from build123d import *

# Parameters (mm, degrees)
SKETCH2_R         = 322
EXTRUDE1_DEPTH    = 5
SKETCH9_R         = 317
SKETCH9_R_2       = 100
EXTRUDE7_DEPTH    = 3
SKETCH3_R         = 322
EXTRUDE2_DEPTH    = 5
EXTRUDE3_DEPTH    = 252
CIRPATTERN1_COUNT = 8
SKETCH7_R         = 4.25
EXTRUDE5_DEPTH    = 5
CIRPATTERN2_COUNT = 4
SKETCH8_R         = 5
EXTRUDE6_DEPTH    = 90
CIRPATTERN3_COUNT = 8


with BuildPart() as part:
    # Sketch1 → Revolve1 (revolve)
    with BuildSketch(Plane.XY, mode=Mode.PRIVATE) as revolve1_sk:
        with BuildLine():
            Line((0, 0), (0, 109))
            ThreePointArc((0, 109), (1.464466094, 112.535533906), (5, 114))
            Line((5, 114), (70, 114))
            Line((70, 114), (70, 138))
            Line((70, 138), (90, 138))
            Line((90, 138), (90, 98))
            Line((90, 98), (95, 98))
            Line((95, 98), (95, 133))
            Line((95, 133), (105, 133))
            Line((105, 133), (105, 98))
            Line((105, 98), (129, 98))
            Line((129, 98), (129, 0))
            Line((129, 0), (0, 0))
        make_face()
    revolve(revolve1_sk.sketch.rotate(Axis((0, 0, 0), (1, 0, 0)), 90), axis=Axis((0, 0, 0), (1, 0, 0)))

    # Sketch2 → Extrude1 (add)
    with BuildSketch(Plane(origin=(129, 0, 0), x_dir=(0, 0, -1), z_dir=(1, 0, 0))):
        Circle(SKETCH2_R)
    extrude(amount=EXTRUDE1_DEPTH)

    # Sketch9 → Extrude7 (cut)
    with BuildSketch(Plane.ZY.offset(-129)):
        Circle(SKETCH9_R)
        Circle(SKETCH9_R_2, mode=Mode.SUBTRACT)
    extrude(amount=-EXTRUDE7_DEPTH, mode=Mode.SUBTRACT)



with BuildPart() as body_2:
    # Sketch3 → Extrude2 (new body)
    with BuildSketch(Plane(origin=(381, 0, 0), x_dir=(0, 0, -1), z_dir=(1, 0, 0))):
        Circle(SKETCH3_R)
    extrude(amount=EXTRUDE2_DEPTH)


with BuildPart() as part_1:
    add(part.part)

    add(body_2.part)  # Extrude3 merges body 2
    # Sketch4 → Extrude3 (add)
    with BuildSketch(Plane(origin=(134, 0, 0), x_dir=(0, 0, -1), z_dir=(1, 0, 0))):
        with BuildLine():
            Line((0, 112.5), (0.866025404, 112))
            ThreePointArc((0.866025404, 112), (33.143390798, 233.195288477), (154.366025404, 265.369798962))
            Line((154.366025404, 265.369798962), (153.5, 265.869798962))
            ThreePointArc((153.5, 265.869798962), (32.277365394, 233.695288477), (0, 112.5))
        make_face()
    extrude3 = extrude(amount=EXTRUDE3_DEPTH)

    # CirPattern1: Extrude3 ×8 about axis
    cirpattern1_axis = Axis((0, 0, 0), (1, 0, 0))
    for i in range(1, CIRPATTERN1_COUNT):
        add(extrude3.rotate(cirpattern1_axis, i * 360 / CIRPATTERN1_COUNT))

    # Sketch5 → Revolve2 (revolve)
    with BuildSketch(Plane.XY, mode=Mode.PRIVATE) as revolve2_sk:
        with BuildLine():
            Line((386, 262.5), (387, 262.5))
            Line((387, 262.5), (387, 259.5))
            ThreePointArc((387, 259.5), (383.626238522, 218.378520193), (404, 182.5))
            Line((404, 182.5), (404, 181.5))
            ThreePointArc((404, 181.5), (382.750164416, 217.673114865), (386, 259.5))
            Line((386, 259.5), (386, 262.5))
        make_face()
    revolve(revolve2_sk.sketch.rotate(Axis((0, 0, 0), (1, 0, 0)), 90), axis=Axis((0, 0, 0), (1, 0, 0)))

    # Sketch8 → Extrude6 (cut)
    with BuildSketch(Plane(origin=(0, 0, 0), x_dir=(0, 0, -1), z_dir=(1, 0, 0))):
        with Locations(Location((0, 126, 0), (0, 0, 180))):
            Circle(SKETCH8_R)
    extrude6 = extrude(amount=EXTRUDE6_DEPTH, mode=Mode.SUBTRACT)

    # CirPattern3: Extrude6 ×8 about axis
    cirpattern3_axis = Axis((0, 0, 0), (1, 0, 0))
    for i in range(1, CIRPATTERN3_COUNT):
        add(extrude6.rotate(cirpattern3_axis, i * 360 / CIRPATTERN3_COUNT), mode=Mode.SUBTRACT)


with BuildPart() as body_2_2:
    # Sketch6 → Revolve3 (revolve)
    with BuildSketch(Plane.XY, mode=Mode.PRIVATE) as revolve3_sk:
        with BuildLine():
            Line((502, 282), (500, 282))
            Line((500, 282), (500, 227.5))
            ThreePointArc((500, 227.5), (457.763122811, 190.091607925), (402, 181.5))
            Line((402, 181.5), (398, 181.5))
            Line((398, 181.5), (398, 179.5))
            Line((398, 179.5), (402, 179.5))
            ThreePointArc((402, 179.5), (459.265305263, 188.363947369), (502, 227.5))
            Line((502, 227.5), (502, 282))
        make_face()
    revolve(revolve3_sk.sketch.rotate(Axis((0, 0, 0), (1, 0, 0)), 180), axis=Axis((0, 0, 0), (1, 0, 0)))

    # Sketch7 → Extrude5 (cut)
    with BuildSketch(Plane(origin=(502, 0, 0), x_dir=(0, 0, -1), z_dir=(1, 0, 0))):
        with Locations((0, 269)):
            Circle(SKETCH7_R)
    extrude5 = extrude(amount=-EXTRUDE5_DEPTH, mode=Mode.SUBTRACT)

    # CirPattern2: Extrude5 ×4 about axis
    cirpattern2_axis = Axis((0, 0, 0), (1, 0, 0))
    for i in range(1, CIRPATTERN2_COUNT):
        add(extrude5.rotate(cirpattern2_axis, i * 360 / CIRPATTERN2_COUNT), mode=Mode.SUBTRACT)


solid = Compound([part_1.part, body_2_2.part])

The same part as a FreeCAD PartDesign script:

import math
import FreeCAD as App
import Part
import Sketcher

V = App.Vector
Q = App.Units.Quantity

doc = App.newDocument("Part")
body = doc.addObject("PartDesign::Body", "Body")

sketch1 = body.newObject("Sketcher::SketchObject", "Sketch")
sketch1.AttachmentSupport = (doc.getObject("XY_Plane"), [""])
sketch1.MapMode = "FlatFace"
sketch1.addGeometry(Part.LineSegment(V(0, 109, 0), V(0, 0, 0)), False)
sketch1.addGeometry(Part.LineSegment(V(0, 0, 0), V(129, 0, 0)), False)
sketch1.addGeometry(Part.LineSegment(V(129, 0, 0), V(129, 98, 0)), False)
sketch1.addGeometry(Part.LineSegment(V(129, 98, 0), V(105, 98, 0)), False)
sketch1.addGeometry(Part.LineSegment(V(105, 98, 0), V(105, 133, 0)), False)
sketch1.addGeometry(Part.LineSegment(V(105, 133, 0), V(95, 133, 0)), False)
sketch1.addGeometry(Part.LineSegment(V(95, 133, 0), V(95, 98, 0)), False)
sketch1.addGeometry(Part.LineSegment(V(95, 98, 0), V(90, 98, 0)), False)
sketch1.addGeometry(Part.LineSegment(V(90, 98, 0), V(90, 138, 0)), False)
sketch1.addGeometry(Part.LineSegment(V(90, 138, 0), V(70, 138, 0)), False)
sketch1.addGeometry(Part.LineSegment(V(70, 138, 0), V(70, 114, 0)), False)
sketch1.addGeometry(Part.LineSegment(V(70, 114, 0), V(5, 114, 0)), False)
sketch1.addGeometry(Part.ArcOfCircle(Part.Circle(V(5, 109, 0), V(0, 0, 1), 5), math.radians(90), math.radians(180)), False)
sketch1.addConstraint(Sketcher.Constraint("Coincident", 0, 2, 1, 1))
sketch1.addConstraint(Sketcher.Constraint("Coincident", 1, 2, 2, 1))
sketch1.addConstraint(Sketcher.Constraint("Coincident", 2, 2, 3, 1))
sketch1.addConstraint(Sketcher.Constraint("Coincident", 3, 2, 4, 1))
sketch1.addConstraint(Sketcher.Constraint("Coincident", 4, 2, 5, 1))
sketch1.addConstraint(Sketcher.Constraint("Coincident", 5, 2, 6, 1))
sketch1.addConstraint(Sketcher.Constraint("Coincident", 6, 2, 7, 1))
sketch1.addConstraint(Sketcher.Constraint("Coincident", 7, 2, 8, 1))
sketch1.addConstraint(Sketcher.Constraint("Coincident", 8, 2, 9, 1))
sketch1.addConstraint(Sketcher.Constraint("Coincident", 9, 2, 10, 1))
sketch1.addConstraint(Sketcher.Constraint("Coincident", 10, 2, 11, 1))
sketch1.addConstraint(Sketcher.Constraint("Tangent", 11, 2, 12, 1))
sketch1.addConstraint(Sketcher.Constraint("Tangent", 12, 2, 0, 1))
sketch1.addConstraint(Sketcher.Constraint("Vertical", 0))
sketch1.addConstraint(Sketcher.Constraint("Horizontal", 1))
sketch1.addConstraint(Sketcher.Constraint("Vertical", 2))
sketch1.addConstraint(Sketcher.Constraint("Horizontal", 3))
sketch1.addConstraint(Sketcher.Constraint("Vertical", 4))
sketch1.addConstraint(Sketcher.Constraint("Horizontal", 5))
sketch1.addConstraint(Sketcher.Constraint("Vertical", 6))
sketch1.addConstraint(Sketcher.Constraint("Horizontal", 7))
sketch1.addConstraint(Sketcher.Constraint("Vertical", 8))
sketch1.addConstraint(Sketcher.Constraint("Horizontal", 9))
sketch1.addConstraint(Sketcher.Constraint("Vertical", 10))
sketch1.addConstraint(Sketcher.Constraint("Horizontal", 11))
sketch1.addConstraint(Sketcher.Constraint("Coincident", 0, 2, -1, 1))
sketch1.addConstraint(Sketcher.Constraint("Horizontal", 3, 2, 6, 2))
sketch1.addConstraint(Sketcher.Constraint("Equal", 3, 10))
sketch1.addConstraint(Sketcher.Constraint("Radius", 12, Q("5 mm")))
sketch1.addConstraint(Sketcher.Constraint("DistanceX", 1, 1, 1, 2, Q("129 mm")))
sketch1.addConstraint(Sketcher.Constraint("DistanceX", 3, 2, 3, 1, Q("24 mm")))
sketch1.addConstraint(Sketcher.Constraint("DistanceX", 5, 2, 5, 1, Q("10 mm")))
sketch1.addConstraint(Sketcher.Constraint("DistanceX", 7, 2, 7, 1, Q("5 mm")))
sketch1.addConstraint(Sketcher.Constraint("DistanceX", 9, 2, 9, 1, Q("20 mm")))
sketch1.addConstraint(Sketcher.Constraint("DistanceY", 0, 2, 0, 1, Q("109 mm")))
sketch1.addConstraint(Sketcher.Constraint("DistanceY", 2, 1, 2, 2, Q("98 mm")))
sketch1.addConstraint(Sketcher.Constraint("DistanceY", 4, 1, 4, 2, Q("35 mm")))
revolution = body.newObject("PartDesign::Revolution", "Revolution")
revolution.Profile = sketch1
revolution.ReferenceAxis = (sketch1, ["H_Axis"])
revolution.Angle = 360

sketch2 = body.newObject("Sketcher::SketchObject", "Sketch001")
sketch2.AttachmentSupport = (doc.getObject("YZ_Plane"), [""])
sketch2.MapMode = "FlatFace"
sketch2.AttachmentOffset = App.Placement(V(0, 0, 129), App.Rotation())
sketch2.addGeometry(Part.Circle(V(0, 0, 0), V(0, 0, 1), 322), False)
sketch2.addConstraint(Sketcher.Constraint("Coincident", 0, 3, -1, 1))
sketch2.addConstraint(Sketcher.Constraint("Diameter", 0, Q("644 mm")))
pad1 = body.newObject("PartDesign::Pad", "Pad")
pad1.Profile = sketch2
pad1.Length = 5

sketch3 = body.newObject("Sketcher::SketchObject", "Sketch002")
sketch3.AttachmentSupport = (doc.getObject("YZ_Plane"), [""])
sketch3.MapMode = "FlatFace"
sketch3.AttachmentOffset = App.Placement(V(0, 0, 129), App.Rotation())
sketch3.addGeometry(Part.Circle(V(0, 0, 0), V(0, 0, 1), 317), False)
sketch3.addGeometry(Part.Circle(V(0, 0, 0), V(0, 0, 1), 100), False)
sketch3.addConstraint(Sketcher.Constraint("Coincident", 0, 3, -1, 1))
sketch3.addConstraint(Sketcher.Constraint("Coincident", 1, 3, -1, 1))
sketch3.addConstraint(Sketcher.Constraint("Diameter", 0, Q("634 mm")))
sketch3.addConstraint(Sketcher.Constraint("Diameter", 1, Q("200 mm")))
pocket1 = body.newObject("PartDesign::Pocket", "Pocket")
pocket1.Profile = sketch3
pocket1.Length = 3
pocket1.Reversed = True
body2 = doc.addObject("PartDesign::Body", "Body001")

sketch4 = body2.newObject("Sketcher::SketchObject", "Sketch003")
sketch4.AttachmentSupport = (doc.getObject("YZ_Plane001"), [""])
sketch4.MapMode = "FlatFace"
sketch4.AttachmentOffset = App.Placement(V(0, 0, 381), App.Rotation())
sketch4.addGeometry(Part.Circle(V(0, 0, 0), V(0, 0, 1), 322), False)
sketch4.addConstraint(Sketcher.Constraint("Coincident", 0, 3, -1, 1))
sketch4.addConstraint(Sketcher.Constraint("Diameter", 0, Q("644 mm")))
pad2 = body2.newObject("PartDesign::Pad", "Pad001")
pad2.Profile = sketch4
pad2.Length = 5
body.AllowCompound = True
doc.recompute()

boolean = body.newObject("PartDesign::Boolean", "Boolean")
boolean.Type = "Fuse"
boolean.addObjects([body2])

sketch5 = body.newObject("Sketcher::SketchObject", "Sketch004")
sketch5.AttachmentSupport = (doc.getObject("YZ_Plane"), [""])
sketch5.MapMode = "FlatFace"
sketch5.AttachmentOffset = App.Placement(V(0, 0, 134), App.Rotation())
sketch5.addGeometry(Part.LineSegment(V(112.5, 0, 0), V(112, -0.9, 0)), False)
sketch5.addGeometry(Part.ArcOfCircle(Part.Circle(V(144.8, -121.5, 0), V(0, 0, 1), 125), math.radians(-15), math.radians(105)), False)
sketch5.addGeometry(Part.LineSegment(V(265.4, -154.4, 0), V(265.9, -153.5, 0)), False)
sketch5.addGeometry(Part.ArcOfCircle(Part.Circle(V(145.3, -120.6, 0), V(0, 0, 1), 125), math.radians(-15), math.radians(105)), False)
sketch5.addConstraint(Sketcher.Constraint("Coincident", 0, 2, 1, 2))
sketch5.addConstraint(Sketcher.Constraint("Coincident", 1, 1, 2, 1))
sketch5.addConstraint(Sketcher.Constraint("Coincident", 2, 2, 3, 1))
sketch5.addConstraint(Sketcher.Constraint("Coincident", 3, 2, 0, 1))
sketch5.addConstraint(Sketcher.Constraint("Equal", 1, 3))
sketch5.addConstraint(Sketcher.Constraint("PointOnObject", 3, 2, -1))
sketch5.addConstraint(Sketcher.Constraint("Parallel", 0, 2))
sketch5.addConstraint(Sketcher.Constraint("Equal", 0, 2))
sketch5.addConstraint(Sketcher.Constraint("Radius", 1, Q("125 mm")))
sketch5.addConstraint(Sketcher.Constraint("Angle", 0, Q("-120 deg")))
sketch5.addConstraint(Sketcher.Constraint("Distance", 0, Q("1 mm")))
sketch5.addConstraint(Sketcher.Constraint("DistanceX", -1, 1, 0, 2, Q("112 mm")))
sketch5.addConstraint(Sketcher.Constraint("DistanceY", 2, 2, -1, 1, Q("153.5 mm")))
sketch5.addConstraint(Sketcher.Constraint("DistanceX", -1, 1, 1, 1, Q("265.369799 mm")))
pad3 = body.newObject("PartDesign::Pad", "Pad002")
pad3.Profile = sketch5
pad3.Length = 252
doc.recompute()

polarpattern = body.newObject("PartDesign::PolarPattern", "PolarPattern")
polarpattern.Originals = [pad3]
polarpattern.Axis = (doc.getObject("X_Axis"), [""])
polarpattern.Angle = 360
polarpattern.Occurrences = 8
body.Tip = polarpattern

sketch6 = body.newObject("Sketcher::SketchObject", "Sketch005")
sketch6.AttachmentSupport = (doc.getObject("XY_Plane"), [""])
sketch6.MapMode = "FlatFace"
sketch6.addGeometry(Part.LineSegment(V(387, 262.5, 0), V(386, 262.5, 0)), False)
sketch6.addGeometry(Part.LineSegment(V(386, 262.5, 0), V(386, 259.5, 0)), False)
sketch6.addGeometry(Part.ArcOfCircle(Part.Circle(V(451, 233.4, 0), V(0, 0, 1), 70), math.radians(158), math.radians(228)), False)
sketch6.addGeometry(Part.LineSegment(V(404, 181.5, 0), V(404, 182.5, 0)), False)
sketch6.addGeometry(Part.ArcOfCircle(Part.Circle(V(452, 233.5, 0), V(0, 0, 1), 70), math.radians(158), math.radians(227)), False)
sketch6.addGeometry(Part.LineSegment(V(387, 259.5, 0), V(387, 262.5, 0)), False)
sketch6.addConstraint(Sketcher.Constraint("Coincident", 0, 2, 1, 1))
sketch6.addConstraint(Sketcher.Constraint("Coincident", 1, 2, 2, 1))
sketch6.addConstraint(Sketcher.Constraint("Coincident", 2, 2, 3, 1))
sketch6.addConstraint(Sketcher.Constraint("Coincident", 3, 2, 4, 2))
sketch6.addConstraint(Sketcher.Constraint("Coincident", 4, 1, 5, 1))
sketch6.addConstraint(Sketcher.Constraint("Coincident", 5, 2, 0, 1))
sketch6.addConstraint(Sketcher.Constraint("Horizontal", 0))
sketch6.addConstraint(Sketcher.Constraint("Vertical", 1))
sketch6.addConstraint(Sketcher.Constraint("Vertical", 3))
sketch6.addConstraint(Sketcher.Constraint("Vertical", 5))
sketch6.addConstraint(Sketcher.Constraint("Equal", 2, 4))
sketch6.addConstraint(Sketcher.Constraint("Horizontal", 1, 2, 4, 1))
sketch6.addConstraint(Sketcher.Constraint("Equal", 0, 3))
sketch6.addConstraint(Sketcher.Constraint("Radius", 2, Q("70 mm")))
sketch6.addConstraint(Sketcher.Constraint("DistanceX", 0, 2, 0, 1, Q("1 mm")))
sketch6.addConstraint(Sketcher.Constraint("DistanceY", 1, 2, 1, 1, Q("3 mm")))
sketch6.addConstraint(Sketcher.Constraint("DistanceX", -1, 1, 0, 2, Q("386 mm")))
sketch6.addConstraint(Sketcher.Constraint("DistanceX", -1, 1, 2, 2, Q("404 mm")))
sketch6.addConstraint(Sketcher.Constraint("DistanceY", 2, 2, 1, 2, Q("78 mm")))
sketch6.addConstraint(Sketcher.Constraint("DistanceY", -1, 1, 0, 2, Q("262.5 mm")))
revolution2 = body.newObject("PartDesign::Revolution", "Revolution001")
revolution2.Profile = sketch6
revolution2.ReferenceAxis = (sketch6, ["H_Axis"])
revolution2.Angle = 360

sketch7 = body.newObject("Sketcher::SketchObject", "Sketch006")
sketch7.AttachmentSupport = (doc.getObject("YZ_Plane"), [""])
sketch7.MapMode = "FlatFace"
sketch7.addGeometry(Part.Circle(V(126, 0, 0), V(0, 0, 1), 5), False)
sketch7.addConstraint(Sketcher.Constraint("PointOnObject", 0, 3, -1))
sketch7.addConstraint(Sketcher.Constraint("Diameter", 0, Q("10 mm")))
sketch7.addConstraint(Sketcher.Constraint("DistanceX", -1, 1, 0, 3, Q("126 mm")))
pocket2 = body.newObject("PartDesign::Pocket", "Pocket001")
pocket2.Profile = sketch7
pocket2.Length = 90
pocket2.Reversed = True
doc.recompute()

polarpattern2 = body.newObject("PartDesign::PolarPattern", "PolarPattern001")
polarpattern2.Originals = [pocket2]
polarpattern2.Axis = (doc.getObject("X_Axis"), [""])
polarpattern2.Angle = 360
polarpattern2.Occurrences = 8
body.Tip = polarpattern2
body3 = doc.addObject("PartDesign::Body", "Body002")

sketch8 = body3.newObject("Sketcher::SketchObject", "Sketch007")
sketch8.AttachmentSupport = (doc.getObject("XY_Plane002"), [""])
sketch8.MapMode = "FlatFace"
sketch8.addGeometry(Part.LineSegment(V(502, 282, 0), V(500, 282, 0)), False)
sketch8.addGeometry(Part.LineSegment(V(500, 282, 0), V(500, 227.5, 0)), False)
sketch8.addGeometry(Part.ArcOfCircle(Part.Circle(V(415.3, 280.6, 0), V(0, 0, 1), 100), math.radians(-98), math.radians(-32)), False)
sketch8.addGeometry(Part.LineSegment(V(402, 181.5, 0), V(398, 181.5, 0)), False)
sketch8.addGeometry(Part.LineSegment(V(398, 181.5, 0), V(398, 179.5, 0)), False)
sketch8.addGeometry(Part.LineSegment(V(398, 179.5, 0), V(402, 179.5, 0)), False)
sketch8.addGeometry(Part.ArcOfCircle(Part.Circle(V(416, 278.5, 0), V(0, 0, 1), 100), math.radians(-98), math.radians(-31)), False)
sketch8.addGeometry(Part.LineSegment(V(502, 227.5, 0), V(502, 282, 0)), False)
sketch8.addConstraint(Sketcher.Constraint("Coincident", 0, 2, 1, 1))
sketch8.addConstraint(Sketcher.Constraint("Coincident", 1, 2, 2, 2))
sketch8.addConstraint(Sketcher.Constraint("Coincident", 2, 1, 3, 1))
sketch8.addConstraint(Sketcher.Constraint("Coincident", 3, 2, 4, 1))
sketch8.addConstraint(Sketcher.Constraint("Coincident", 4, 2, 5, 1))
sketch8.addConstraint(Sketcher.Constraint("Coincident", 5, 2, 6, 1))
sketch8.addConstraint(Sketcher.Constraint("Coincident", 6, 2, 7, 1))
sketch8.addConstraint(Sketcher.Constraint("Coincident", 7, 2, 0, 1))
sketch8.addConstraint(Sketcher.Constraint("Horizontal", 0))
sketch8.addConstraint(Sketcher.Constraint("Vertical", 1))
sketch8.addConstraint(Sketcher.Constraint("Horizontal", 3))
sketch8.addConstraint(Sketcher.Constraint("Vertical", 4))
sketch8.addConstraint(Sketcher.Constraint("Horizontal", 5))
sketch8.addConstraint(Sketcher.Constraint("Vertical", 7))
sketch8.addConstraint(Sketcher.Constraint("Equal", 2, 6))
sketch8.addConstraint(Sketcher.Constraint("Horizontal", 1, 2, 6, 2))
sketch8.addConstraint(Sketcher.Constraint("Vertical", 2, 1, 5, 2))
sketch8.addConstraint(Sketcher.Constraint("Equal", 0, 4))
sketch8.addConstraint(Sketcher.Constraint("Radius", 2, Q("100 mm")))
sketch8.addConstraint(Sketcher.Constraint("DistanceX", 0, 2, 0, 1, Q("2 mm")))
sketch8.addConstraint(Sketcher.Constraint("DistanceX", 3, 2, 3, 1, Q("4 mm")))
sketch8.addConstraint(Sketcher.Constraint("DistanceY", 1, 2, 1, 1, Q("54.5 mm")))
sketch8.addConstraint(Sketcher.Constraint("DistanceX", -1, 1, 0, 2, Q("500 mm")))
sketch8.addConstraint(Sketcher.Constraint("DistanceY", -1, 1, 0, 2, Q("282 mm")))
sketch8.addConstraint(Sketcher.Constraint("DistanceX", -1, 1, 2, 1, Q("402 mm")))
sketch8.addConstraint(Sketcher.Constraint("DistanceY", 2, 1, 1, 2, Q("46 mm")))
revolution3 = body3.newObject("PartDesign::Revolution", "Revolution002")
revolution3.Profile = sketch8
revolution3.ReferenceAxis = (sketch8, ["H_Axis"])
revolution3.Angle = 360

sketch9 = body3.newObject("Sketcher::SketchObject", "Sketch008")
sketch9.AttachmentSupport = (doc.getObject("YZ_Plane002"), [""])
sketch9.MapMode = "FlatFace"
sketch9.AttachmentOffset = App.Placement(V(0, 0, 502), App.Rotation())
sketch9.addGeometry(Part.Circle(V(269, 0, 0), V(0, 0, 1), 4.2), False)
sketch9.addConstraint(Sketcher.Constraint("PointOnObject", 0, 3, -1))
sketch9.addConstraint(Sketcher.Constraint("Diameter", 0, Q("8.5 mm")))
sketch9.addConstraint(Sketcher.Constraint("DistanceX", -1, 1, 0, 3, Q("269 mm")))
pocket3 = body3.newObject("PartDesign::Pocket", "Pocket002")
pocket3.Profile = sketch9
pocket3.Length = 5
doc.recompute()

polarpattern3 = body3.newObject("PartDesign::PolarPattern", "PolarPattern002")
polarpattern3.Originals = [pocket3]
polarpattern3.Axis = (doc.getObject("X_Axis002"), [""])
polarpattern3.Angle = 360
polarpattern3.Occurrences = 4
body3.Tip = polarpattern3

doc.recompute()
